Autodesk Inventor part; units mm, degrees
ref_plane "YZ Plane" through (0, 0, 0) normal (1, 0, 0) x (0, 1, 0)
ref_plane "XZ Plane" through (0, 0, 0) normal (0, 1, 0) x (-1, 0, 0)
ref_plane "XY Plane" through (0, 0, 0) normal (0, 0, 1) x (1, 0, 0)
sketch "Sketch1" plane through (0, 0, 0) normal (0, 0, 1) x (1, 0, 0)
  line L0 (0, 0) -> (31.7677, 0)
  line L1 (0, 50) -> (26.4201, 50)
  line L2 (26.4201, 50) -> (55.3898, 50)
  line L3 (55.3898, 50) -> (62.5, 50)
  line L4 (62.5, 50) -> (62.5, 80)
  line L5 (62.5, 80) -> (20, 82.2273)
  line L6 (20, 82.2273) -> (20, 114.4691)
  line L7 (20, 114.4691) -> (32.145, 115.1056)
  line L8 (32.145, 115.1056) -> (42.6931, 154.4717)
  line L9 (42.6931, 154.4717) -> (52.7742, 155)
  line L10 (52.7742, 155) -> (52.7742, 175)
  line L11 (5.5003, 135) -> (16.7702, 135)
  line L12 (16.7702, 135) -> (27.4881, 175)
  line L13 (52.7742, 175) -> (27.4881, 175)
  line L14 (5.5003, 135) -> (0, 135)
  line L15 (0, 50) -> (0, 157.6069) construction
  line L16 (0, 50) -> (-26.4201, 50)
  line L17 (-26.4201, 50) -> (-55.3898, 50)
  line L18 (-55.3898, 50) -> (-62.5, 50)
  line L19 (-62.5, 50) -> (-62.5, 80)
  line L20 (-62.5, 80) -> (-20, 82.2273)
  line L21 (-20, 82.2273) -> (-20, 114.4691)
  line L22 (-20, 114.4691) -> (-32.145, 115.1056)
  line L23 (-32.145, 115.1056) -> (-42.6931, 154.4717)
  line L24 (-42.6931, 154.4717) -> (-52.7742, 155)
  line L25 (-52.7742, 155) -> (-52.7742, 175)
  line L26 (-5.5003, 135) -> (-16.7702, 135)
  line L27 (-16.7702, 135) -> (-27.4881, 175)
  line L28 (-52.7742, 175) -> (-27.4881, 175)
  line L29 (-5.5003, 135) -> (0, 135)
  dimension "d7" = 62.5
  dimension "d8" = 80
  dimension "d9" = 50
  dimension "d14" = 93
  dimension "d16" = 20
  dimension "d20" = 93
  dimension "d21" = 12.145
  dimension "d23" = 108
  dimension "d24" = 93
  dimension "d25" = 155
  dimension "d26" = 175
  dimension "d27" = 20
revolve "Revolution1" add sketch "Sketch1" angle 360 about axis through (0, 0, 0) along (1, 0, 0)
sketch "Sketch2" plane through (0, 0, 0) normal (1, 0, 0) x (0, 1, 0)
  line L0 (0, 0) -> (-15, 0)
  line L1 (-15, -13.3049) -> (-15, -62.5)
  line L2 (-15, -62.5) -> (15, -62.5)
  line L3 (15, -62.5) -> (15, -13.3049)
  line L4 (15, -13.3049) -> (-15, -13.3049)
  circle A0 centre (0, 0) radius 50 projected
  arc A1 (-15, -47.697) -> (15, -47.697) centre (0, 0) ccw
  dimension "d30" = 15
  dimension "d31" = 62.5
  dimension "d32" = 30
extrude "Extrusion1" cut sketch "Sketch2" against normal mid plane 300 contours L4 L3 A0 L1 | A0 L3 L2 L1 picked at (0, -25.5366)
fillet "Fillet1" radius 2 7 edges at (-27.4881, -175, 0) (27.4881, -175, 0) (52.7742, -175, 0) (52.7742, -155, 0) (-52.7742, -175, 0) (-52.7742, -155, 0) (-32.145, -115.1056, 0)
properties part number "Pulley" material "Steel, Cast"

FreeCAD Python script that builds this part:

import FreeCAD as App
import Part
import Sketcher
Q = App.Units.Quantity


def edges_at(feature, points):
    """Names of the edges that pass closest to the given points."""
    edges = feature.Shape.Edges
    near = lambda p: min(range(len(edges)), key=lambda i: edges[i].distToShape(Part.Vertex(*p))[0])
    return sorted({f"Edge{near(p) + 1}" for p in points})

doc = App.newDocument("Part")
body = doc.addObject("PartDesign::Body", "Body")

# Sketch on XY plane
sketch1 = body.newObject("Sketcher::SketchObject", "Sketch")
sketch1.AttachmentSupport = (doc.getObject("XY_Plane"), [""])
sketch1.MapMode = "FlatFace"
sketch1.addGeometry([
    Part.LineSegment(App.Vector(-62.5, 50, 0), App.Vector(62.5, 50, 0)),  # 0
    Part.LineSegment(App.Vector(62.5, 50, 0), App.Vector(62.5, 80, 0)),  # 1
    Part.LineSegment(App.Vector(62.5, 80, 0), App.Vector(20, 82.2273, 0)),  # 2
    Part.LineSegment(App.Vector(20, 82.2273, 0), App.Vector(20, 114.4691, 0)),  # 3
    Part.LineSegment(App.Vector(20, 114.4691, 0), App.Vector(32.145, 115.1056, 0)),  # 4
    Part.LineSegment(App.Vector(32.145, 115.1056, 0), App.Vector(42.6931, 154.4717, 0)),  # 5
    Part.LineSegment(App.Vector(42.6931, 154.4717, 0), App.Vector(52.7742, 155, 0)),  # 6
    Part.LineSegment(App.Vector(52.7742, 155, 0), App.Vector(52.7742, 175, 0)),  # 7
    Part.LineSegment(App.Vector(52.7742, 175, 0), App.Vector(27.4881, 175, 0)),  # 8
    Part.LineSegment(App.Vector(27.4881, 175, 0), App.Vector(16.7702, 135, 0)),  # 9
    Part.LineSegment(App.Vector(16.7702, 135, 0), App.Vector(-16.7702, 135, 0)),  # 10
    Part.LineSegment(App.Vector(-16.7702, 135, 0), App.Vector(-27.4881, 175, 0)),  # 11
    Part.LineSegment(App.Vector(-27.4881, 175, 0), App.Vector(-52.7742, 175, 0)),  # 12
    Part.LineSegment(App.Vector(-52.7742, 175, 0), App.Vector(-52.7742, 155, 0)),  # 13
    Part.LineSegment(App.Vector(-52.7742, 155, 0), App.Vector(-42.6931, 154.4717, 0)),  # 14
    Part.LineSegment(App.Vector(-42.6931, 154.4717, 0), App.Vector(-32.145, 115.1056, 0)),  # 15
    Part.LineSegment(App.Vector(-32.145, 115.1056, 0), App.Vector(-20, 114.4691, 0)),  # 16
    Part.LineSegment(App.Vector(-20, 114.4691, 0), App.Vector(-20, 82.2273, 0)),  # 17
    Part.LineSegment(App.Vector(-20, 82.2273, 0), App.Vector(-62.5, 80, 0)),  # 18
    Part.LineSegment(App.Vector(-62.5, 80, 0), App.Vector(-62.5, 50, 0)),  # 19
], False)
sketch1.addConstraint([
    Sketcher.Constraint("Coincident", 0, 2, 1, 1),
    Sketcher.Constraint("Coincident", 1, 2, 2, 1),
    Sketcher.Constraint("Coincident", 2, 2, 3, 1),
    Sketcher.Constraint("Coincident", 3, 2, 4, 1),
    Sketcher.Constraint("Coincident", 4, 2, 5, 1),
    Sketcher.Constraint("Coincident", 5, 2, 6, 1),
    Sketcher.Constraint("Coincident", 6, 2, 7, 1),
    Sketcher.Constraint("Coincident", 7, 2, 8, 1),
    Sketcher.Constraint("Coincident", 8, 2, 9, 1),
    Sketcher.Constraint("Coincident", 9, 2, 10, 1),
    Sketcher.Constraint("Coincident", 10, 2, 11, 1),
    Sketcher.Constraint("Coincident", 11, 2, 12, 1),
    Sketcher.Constraint("Coincident", 12, 2, 13, 1),
    Sketcher.Constraint("Coincident", 13, 2, 14, 1),
    Sketcher.Constraint("Coincident", 14, 2, 15, 1),
    Sketcher.Constraint("Coincident", 15, 2, 16, 1),
    Sketcher.Constraint("Coincident", 16, 2, 17, 1),
    Sketcher.Constraint("Coincident", 17, 2, 18, 1),
    Sketcher.Constraint("Coincident", 18, 2, 19, 1),
    Sketcher.Constraint("Coincident", 19, 2, 0, 1),
    Sketcher.Constraint("Horizontal", 0),
    Sketcher.Constraint("Vertical", 1),
    Sketcher.Constraint("Vertical", 3),
    Sketcher.Constraint("Vertical", 7),
    Sketcher.Constraint("Horizontal", 8),
    Sketcher.Constraint("Horizontal", 10),
    Sketcher.Constraint("Horizontal", 12),
    Sketcher.Constraint("Vertical", 13),
    Sketcher.Constraint("Vertical", 17),
    Sketcher.Constraint("Vertical", 19),
    Sketcher.Constraint("Symmetric", 8, 2, 11, 2, -2),
    Sketcher.Constraint("Symmetric", 6, 2, 13, 2, -2),
    Sketcher.Constraint("Symmetric", 5, 2, 14, 2, -2),
    Sketcher.Constraint("Symmetric", 4, 2, 15, 2, -2),
    Sketcher.Constraint("Symmetric", 3, 2, 16, 2, -2),
    Sketcher.Constraint("Symmetric", 1, 2, 18, 2, -2),
    Sketcher.Constraint("Parallel", 4, 6),
    Sketcher.Constraint("Parallel", 5, 9),
    Sketcher.Constraint("Parallel", 2, 14),
    Sketcher.Constraint("Parallel", 11, 15),
    Sketcher.Constraint("Parallel", 6, 18),
    Sketcher.Constraint("DistanceY", 7, 1, 7, 2, 20.0),
    Sketcher.Constraint("DistanceY", -1, 1, 0, 2, 50.0),
    Sketcher.Constraint("DistanceY", -1, 1, 1, 2, 80.0),
    Sketcher.Constraint("DistanceX", -1, 1, 2, 2, 20.0),
    Sketcher.Constraint("DistanceY", -1, 1, 6, 2, 155.0),
    Sketcher.Constraint("DistanceY", 9, 2, 6, 2, 20.0),
    Sketcher.Constraint("DistanceX", -1, 1, 0, 2, 62.5),
    Sketcher.Constraint("Angle", 2, Q("177 deg")),
    Sketcher.Constraint("Angle", 5, Q("75 deg")),
    Sketcher.Constraint("DistanceX", 3, 2, 4, 2, 12.145),
    Sketcher.Constraint("DistanceX", 8, 2, 8, 1, 25.286),
    Sketcher.Constraint("Distance", 6, 10.095),
    Sketcher.Constraint("DistanceX", 10, 2, 10, 1, 33.5404),
])
revolution = body.newObject("PartDesign::Revolution", "Revolution")
revolution.Profile = sketch1
revolution.ReferenceAxis = (sketch1, ["H_Axis"])
revolution.Angle = 360

# Sketch on YZ plane
sketch2 = body.newObject("Sketcher::SketchObject", "Sketch001")
sketch2.AttachmentSupport = (doc.getObject("YZ_Plane"), [""])
sketch2.MapMode = "FlatFace"
sketch2.addGeometry([
    Part.LineSegment(App.Vector(15, -13.3049, 0), App.Vector(-15, -13.3049, 0)),
    Part.LineSegment(App.Vector(-15, -13.3049, 0), App.Vector(-15, -62.5, 0)),
    Part.LineSegment(App.Vector(-15, -62.5, 0), App.Vector(15, -62.5, 0)),
    Part.LineSegment(App.Vector(15, -62.5, 0), App.Vector(15, -13.3049, 0)),
], False)
sketch2.addConstraint([
    Sketcher.Constraint("Coincident", 0, 2, 1, 1),
    Sketcher.Constraint("Coincident", 1, 2, 2, 1),
    Sketcher.Constraint("Coincident", 2, 2, 3, 1),
    Sketcher.Constraint("Coincident", 3, 2, 0, 1),
    Sketcher.Constraint("Horizontal", 0),
    Sketcher.Constraint("Vertical", 1),
    Sketcher.Constraint("Horizontal", 2),
    Sketcher.Constraint("Vertical", 3),
    Sketcher.Constraint("DistanceX", 0, 2, 0, 1, 30.0),
    Sketcher.Constraint("DistanceX", 0, 2, -1, 1, 15.0),
    Sketcher.Constraint("DistanceY", 1, 2, -1, 1, 62.5),
    Sketcher.Constraint("DistanceY", 1, 2, 1, 1, 49.195),
])
pocket1 = body.newObject("PartDesign::Pocket", "Pocket")
pocket1.Profile = sketch2
pocket1.Length = 300
pocket1.Midplane = True
doc.recompute()

fillet = body.newObject("PartDesign::Fillet", "Fillet")
fillet.Base = (pocket1, edges_at(pocket1, [
    (-27.488, -175, 0),
    (27.488, -175, 0),
    (52.774, -175, 0),
    (52.774, -155, 0),
    (-52.774, -175, 0),
    (-52.774, -155, 0),
    (-32.145, -115.106, 0),
]))
fillet.Radius = 2

doc.recompute()
